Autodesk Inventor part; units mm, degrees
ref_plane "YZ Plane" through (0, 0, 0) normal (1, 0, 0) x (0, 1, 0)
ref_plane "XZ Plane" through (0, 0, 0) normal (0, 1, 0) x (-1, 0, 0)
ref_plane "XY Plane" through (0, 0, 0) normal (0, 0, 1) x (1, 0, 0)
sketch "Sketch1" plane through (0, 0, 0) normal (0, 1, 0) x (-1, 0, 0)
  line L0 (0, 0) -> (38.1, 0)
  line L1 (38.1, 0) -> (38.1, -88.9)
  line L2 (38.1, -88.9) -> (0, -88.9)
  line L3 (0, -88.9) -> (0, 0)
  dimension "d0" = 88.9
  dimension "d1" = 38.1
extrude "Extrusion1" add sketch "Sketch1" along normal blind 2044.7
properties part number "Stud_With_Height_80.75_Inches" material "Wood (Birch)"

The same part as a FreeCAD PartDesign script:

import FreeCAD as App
import Part
import Sketcher
from FreeCAD import Vector
Q = App.Units.Quantity


def add_polygon(sketch, points):
    """Adds a closed chain of lines whose ends are joined by coincident constraints."""
    first, n = sketch.GeometryCount, len(points)
    for a, b in zip(points, points[1:] + points[:1]):
        sketch.addGeometry(Part.LineSegment(App.Vector(*a, 0), App.Vector(*b, 0)), False)
    for i in range(n):
        sketch.addConstraint(Sketcher.Constraint("Coincident", first + i, 2, first + (i + 1) % n, 1))

doc = App.newDocument("Part")
body = doc.addObject("PartDesign::Body", "Body")

# Sketch on XZ plane
sketch1 = body.newObject("Sketcher::SketchObject", "Sketch")
sketch1.AttachmentSupport = (doc.getObject("XZ_Plane"), [""])
sketch1.MapMode = "FlatFace"
add_polygon(sketch1, [(-38, 0), (0, 0), (0, -89), (-38, -89)])  # lines 0-3
sketch1.addConstraint([
    Sketcher.Constraint("Horizontal", 0),
    Sketcher.Constraint("Vertical", 1),
    Sketcher.Constraint("Horizontal", 2),
    Sketcher.Constraint("Vertical", 3),
    Sketcher.Constraint("Coincident", 0, 2, -1, 1),
    Sketcher.Constraint("DistanceX", 0, 1, 0, 2, Q("1.5 in")),
    Sketcher.Constraint("DistanceY", 1, 2, 1, 1, Q("3.5 in")),
])
pad1 = body.newObject("PartDesign::Pad", "Pad")
pad1.Profile = sketch1
pad1.Length = Q("80.5 in")
pad1.Reversed = True

doc.recompute()
